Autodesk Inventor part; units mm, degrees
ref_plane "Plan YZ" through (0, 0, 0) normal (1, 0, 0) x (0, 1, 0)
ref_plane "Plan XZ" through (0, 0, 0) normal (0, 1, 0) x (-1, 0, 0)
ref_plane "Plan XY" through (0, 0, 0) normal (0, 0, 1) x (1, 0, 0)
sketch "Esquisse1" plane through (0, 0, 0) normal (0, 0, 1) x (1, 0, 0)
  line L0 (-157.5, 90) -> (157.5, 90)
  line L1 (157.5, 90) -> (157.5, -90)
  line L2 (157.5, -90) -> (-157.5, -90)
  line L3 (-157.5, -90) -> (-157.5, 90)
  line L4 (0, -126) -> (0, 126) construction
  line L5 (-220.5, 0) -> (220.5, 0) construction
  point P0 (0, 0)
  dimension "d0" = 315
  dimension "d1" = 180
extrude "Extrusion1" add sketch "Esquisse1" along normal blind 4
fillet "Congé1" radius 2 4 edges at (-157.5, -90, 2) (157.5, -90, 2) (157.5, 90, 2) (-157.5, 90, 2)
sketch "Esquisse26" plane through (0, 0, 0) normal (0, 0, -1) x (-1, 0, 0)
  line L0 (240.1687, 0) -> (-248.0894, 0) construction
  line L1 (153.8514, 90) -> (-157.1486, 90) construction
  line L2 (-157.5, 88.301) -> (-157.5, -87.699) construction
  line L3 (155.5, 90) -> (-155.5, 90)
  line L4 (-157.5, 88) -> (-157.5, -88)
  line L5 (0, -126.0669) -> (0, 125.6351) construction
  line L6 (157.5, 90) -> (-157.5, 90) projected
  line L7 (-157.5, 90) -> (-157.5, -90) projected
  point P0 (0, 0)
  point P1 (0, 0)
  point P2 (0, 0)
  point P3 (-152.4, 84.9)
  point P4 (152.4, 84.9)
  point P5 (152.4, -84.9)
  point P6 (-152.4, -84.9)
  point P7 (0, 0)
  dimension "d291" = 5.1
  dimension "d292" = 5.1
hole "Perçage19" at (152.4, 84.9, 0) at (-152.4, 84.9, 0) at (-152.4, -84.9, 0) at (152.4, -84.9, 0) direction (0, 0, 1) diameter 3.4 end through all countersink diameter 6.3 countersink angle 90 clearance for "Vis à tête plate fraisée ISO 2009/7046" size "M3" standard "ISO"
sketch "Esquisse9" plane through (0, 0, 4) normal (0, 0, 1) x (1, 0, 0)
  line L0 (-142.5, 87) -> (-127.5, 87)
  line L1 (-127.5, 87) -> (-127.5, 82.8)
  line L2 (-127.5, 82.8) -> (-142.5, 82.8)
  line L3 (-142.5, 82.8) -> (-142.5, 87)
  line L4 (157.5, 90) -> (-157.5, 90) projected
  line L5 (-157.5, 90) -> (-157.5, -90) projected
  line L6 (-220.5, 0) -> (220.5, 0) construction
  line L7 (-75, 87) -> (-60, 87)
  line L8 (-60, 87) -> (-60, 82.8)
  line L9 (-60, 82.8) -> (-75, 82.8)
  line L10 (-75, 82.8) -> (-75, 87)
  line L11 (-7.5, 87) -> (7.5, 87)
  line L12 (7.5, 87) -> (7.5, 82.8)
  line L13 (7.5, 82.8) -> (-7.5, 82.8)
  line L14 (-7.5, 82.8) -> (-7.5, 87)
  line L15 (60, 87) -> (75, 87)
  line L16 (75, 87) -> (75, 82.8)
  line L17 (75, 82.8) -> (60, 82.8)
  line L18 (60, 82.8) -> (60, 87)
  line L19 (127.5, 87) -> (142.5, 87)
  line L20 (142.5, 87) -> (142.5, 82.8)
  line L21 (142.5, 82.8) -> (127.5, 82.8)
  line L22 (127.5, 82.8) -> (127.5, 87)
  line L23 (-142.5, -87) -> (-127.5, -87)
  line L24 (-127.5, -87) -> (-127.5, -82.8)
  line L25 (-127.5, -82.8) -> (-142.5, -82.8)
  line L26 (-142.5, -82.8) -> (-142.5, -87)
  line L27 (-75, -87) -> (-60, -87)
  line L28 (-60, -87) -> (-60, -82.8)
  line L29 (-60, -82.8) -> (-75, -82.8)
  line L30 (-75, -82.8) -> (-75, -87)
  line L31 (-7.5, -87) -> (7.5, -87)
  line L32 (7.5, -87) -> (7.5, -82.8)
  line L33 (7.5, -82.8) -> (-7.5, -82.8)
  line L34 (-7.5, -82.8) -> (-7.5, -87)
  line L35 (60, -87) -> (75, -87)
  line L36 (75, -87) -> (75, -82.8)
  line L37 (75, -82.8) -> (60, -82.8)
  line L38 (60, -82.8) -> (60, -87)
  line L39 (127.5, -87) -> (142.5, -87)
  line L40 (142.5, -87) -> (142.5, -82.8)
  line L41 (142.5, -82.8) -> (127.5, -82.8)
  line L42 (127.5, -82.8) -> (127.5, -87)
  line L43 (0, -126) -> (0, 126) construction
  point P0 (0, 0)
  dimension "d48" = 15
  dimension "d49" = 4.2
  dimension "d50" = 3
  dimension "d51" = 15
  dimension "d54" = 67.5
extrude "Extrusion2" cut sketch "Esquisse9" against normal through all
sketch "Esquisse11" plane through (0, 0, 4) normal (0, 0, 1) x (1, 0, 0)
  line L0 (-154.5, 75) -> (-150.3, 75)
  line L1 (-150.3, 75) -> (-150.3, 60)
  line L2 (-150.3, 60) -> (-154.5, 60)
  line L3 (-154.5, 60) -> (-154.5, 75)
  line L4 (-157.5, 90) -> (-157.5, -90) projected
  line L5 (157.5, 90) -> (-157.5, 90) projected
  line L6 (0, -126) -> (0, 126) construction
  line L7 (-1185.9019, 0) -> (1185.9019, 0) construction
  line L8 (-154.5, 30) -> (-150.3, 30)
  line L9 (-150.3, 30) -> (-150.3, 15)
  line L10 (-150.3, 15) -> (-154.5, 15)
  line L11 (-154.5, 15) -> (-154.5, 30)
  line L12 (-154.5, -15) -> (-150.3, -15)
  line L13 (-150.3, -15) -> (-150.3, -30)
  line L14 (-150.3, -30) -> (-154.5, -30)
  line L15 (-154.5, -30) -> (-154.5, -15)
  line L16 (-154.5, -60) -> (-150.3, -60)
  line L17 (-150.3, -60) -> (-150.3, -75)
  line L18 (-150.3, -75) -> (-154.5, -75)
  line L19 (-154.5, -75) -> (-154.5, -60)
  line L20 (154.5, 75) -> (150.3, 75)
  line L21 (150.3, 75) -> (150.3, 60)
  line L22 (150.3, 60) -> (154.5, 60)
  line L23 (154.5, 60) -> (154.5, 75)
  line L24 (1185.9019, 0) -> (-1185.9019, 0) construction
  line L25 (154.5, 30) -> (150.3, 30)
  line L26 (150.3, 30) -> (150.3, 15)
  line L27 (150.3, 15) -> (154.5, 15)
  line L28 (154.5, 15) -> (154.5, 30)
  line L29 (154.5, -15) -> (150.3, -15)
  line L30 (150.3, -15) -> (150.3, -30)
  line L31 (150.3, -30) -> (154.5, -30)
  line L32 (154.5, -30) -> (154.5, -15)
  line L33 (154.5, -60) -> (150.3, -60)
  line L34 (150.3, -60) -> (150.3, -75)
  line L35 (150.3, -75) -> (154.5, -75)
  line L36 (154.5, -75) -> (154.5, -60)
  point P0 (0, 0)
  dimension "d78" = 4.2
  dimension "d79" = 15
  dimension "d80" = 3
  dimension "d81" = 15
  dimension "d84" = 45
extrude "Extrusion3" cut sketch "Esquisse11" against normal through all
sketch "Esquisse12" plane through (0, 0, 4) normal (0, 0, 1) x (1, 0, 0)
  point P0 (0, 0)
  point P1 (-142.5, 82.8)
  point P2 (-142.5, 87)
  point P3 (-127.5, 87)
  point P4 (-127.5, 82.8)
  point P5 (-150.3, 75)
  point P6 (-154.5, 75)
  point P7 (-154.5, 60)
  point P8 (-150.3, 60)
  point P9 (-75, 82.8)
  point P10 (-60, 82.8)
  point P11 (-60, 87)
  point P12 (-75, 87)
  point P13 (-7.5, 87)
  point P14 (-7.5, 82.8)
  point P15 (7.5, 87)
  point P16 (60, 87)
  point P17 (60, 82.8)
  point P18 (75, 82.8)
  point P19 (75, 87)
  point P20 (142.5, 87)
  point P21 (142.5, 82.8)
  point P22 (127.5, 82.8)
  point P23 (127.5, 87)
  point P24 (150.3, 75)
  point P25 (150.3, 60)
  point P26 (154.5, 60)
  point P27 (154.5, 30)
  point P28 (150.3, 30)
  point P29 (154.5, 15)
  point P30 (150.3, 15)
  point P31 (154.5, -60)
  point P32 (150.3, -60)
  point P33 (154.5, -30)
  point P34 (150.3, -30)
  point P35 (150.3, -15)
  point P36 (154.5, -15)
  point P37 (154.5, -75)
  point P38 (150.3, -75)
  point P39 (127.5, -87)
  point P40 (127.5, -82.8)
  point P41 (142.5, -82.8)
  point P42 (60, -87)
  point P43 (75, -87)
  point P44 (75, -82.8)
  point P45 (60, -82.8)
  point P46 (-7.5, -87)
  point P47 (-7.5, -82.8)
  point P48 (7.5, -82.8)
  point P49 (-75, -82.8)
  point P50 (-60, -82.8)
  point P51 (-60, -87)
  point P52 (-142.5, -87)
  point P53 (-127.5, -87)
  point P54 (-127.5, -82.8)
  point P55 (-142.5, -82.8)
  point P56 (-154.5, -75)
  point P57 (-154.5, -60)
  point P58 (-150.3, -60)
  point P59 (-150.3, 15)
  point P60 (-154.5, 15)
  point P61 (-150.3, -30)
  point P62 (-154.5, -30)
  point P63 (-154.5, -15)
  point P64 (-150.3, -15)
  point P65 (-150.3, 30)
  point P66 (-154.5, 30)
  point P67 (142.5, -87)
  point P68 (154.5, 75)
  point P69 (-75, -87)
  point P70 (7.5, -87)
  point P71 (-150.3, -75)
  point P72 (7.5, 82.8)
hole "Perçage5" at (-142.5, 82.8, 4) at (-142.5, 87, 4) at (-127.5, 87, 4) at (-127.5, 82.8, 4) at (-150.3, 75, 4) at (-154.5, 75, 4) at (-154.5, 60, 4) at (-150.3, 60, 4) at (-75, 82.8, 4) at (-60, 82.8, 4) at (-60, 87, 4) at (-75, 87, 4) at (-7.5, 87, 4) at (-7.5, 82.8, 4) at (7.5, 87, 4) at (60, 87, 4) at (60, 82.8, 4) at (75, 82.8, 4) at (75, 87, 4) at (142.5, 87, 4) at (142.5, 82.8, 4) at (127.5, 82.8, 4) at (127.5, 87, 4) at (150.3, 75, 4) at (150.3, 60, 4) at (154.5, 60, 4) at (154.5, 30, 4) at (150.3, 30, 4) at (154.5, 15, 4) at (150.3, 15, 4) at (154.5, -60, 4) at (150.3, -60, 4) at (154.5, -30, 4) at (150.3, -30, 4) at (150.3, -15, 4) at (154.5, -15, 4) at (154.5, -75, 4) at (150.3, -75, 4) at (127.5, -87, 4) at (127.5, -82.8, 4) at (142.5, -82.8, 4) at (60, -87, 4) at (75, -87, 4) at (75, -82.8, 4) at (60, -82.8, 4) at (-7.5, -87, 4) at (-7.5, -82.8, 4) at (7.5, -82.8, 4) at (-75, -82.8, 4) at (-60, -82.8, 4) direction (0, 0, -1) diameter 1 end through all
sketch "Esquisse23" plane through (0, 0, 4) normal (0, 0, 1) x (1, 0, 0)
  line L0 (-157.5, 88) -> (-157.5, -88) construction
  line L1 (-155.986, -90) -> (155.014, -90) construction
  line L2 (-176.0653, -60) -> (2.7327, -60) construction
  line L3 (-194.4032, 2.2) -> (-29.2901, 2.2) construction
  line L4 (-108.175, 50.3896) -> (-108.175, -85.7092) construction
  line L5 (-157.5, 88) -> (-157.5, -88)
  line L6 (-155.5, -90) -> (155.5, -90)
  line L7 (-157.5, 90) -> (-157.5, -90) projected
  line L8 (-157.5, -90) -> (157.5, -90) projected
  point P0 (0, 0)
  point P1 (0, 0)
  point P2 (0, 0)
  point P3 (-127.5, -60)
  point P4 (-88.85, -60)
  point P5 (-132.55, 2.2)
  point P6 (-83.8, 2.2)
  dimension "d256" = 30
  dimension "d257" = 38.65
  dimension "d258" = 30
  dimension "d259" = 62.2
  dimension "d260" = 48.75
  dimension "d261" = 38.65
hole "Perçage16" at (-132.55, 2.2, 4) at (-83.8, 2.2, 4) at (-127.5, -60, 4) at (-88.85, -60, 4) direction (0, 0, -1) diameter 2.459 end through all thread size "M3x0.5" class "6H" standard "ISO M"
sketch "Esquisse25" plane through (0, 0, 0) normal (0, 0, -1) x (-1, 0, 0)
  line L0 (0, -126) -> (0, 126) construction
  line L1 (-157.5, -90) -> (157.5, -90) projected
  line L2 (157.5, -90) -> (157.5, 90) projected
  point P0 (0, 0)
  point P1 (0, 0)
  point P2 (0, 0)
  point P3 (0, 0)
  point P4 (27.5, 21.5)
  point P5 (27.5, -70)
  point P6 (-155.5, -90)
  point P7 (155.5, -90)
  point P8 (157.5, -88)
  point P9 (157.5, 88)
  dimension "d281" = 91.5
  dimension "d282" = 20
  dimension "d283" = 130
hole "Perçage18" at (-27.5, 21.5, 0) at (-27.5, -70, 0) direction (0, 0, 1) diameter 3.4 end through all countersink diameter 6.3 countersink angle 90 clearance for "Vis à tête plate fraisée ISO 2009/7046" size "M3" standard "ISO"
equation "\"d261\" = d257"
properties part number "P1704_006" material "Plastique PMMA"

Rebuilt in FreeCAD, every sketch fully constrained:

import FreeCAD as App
import Part
import Sketcher

V = App.Vector
Q = App.Units.Quantity


def edges_at(feature, points):
    """Names of the edges that pass closest to the given points."""
    edges = feature.Shape.Edges
    near = lambda p: min(range(len(edges)), key=lambda i: edges[i].distToShape(Part.Vertex(*p))[0])
    return sorted({f"Edge{near(p) + 1}" for p in points})


def add_polygon(sketch, points):
    """Adds a closed chain of lines whose ends are joined by coincident constraints."""
    first, n = sketch.GeometryCount, len(points)
    for a, b in zip(points, points[1:] + points[:1]):
        sketch.addGeometry(Part.LineSegment(App.Vector(*a, 0), App.Vector(*b, 0)), False)
    for i in range(n):
        sketch.addConstraint(Sketcher.Constraint("Coincident", first + i, 2, first + (i + 1) % n, 1))

doc = App.newDocument("Part")
body = doc.addObject("PartDesign::Body", "Body")

sketch1 = doc.addObject("Sketcher::SketchObject", "Sketch")
body.addObject(sketch1)
sketch1.AttachmentSupport = (doc.XY_Plane, [""])
sketch1.MapMode = "FlatFace"
add_polygon(sketch1, [(158, 90), (-158, 90), (-158, -90), (158, -90)])
sketch1.addConstraint([
    Sketcher.Constraint("Horizontal", 0),
    Sketcher.Constraint("Vertical", 1),
    Sketcher.Constraint("Horizontal", 2),
    Sketcher.Constraint("Vertical", 3),
    Sketcher.Constraint("Symmetric", 0, 2, 2, 2, -1, 1),
    Sketcher.Constraint("DistanceX", 0, 2, 0, 1, Q("315 mm")),
    Sketcher.Constraint("DistanceY", 1, 2, 1, 1, Q("180 mm")),
])
pad1 = doc.addObject("PartDesign::Pad", "Pad")
body.addObject(pad1)
pad1.Profile = sketch1
pad1.Length = 4
doc.recompute()

fillet = doc.addObject("PartDesign::Fillet", "Fillet")
body.addObject(fillet)
fillet.Base = (pad1, edges_at(pad1, [
    (-157.5, -90, 2),
    (157.5, -90, 2),
    (157.5, 90, 2),
    (-157.5, 90, 2),
]))
fillet.Radius = 2

sketch2 = doc.addObject("Sketcher::SketchObject", "Sketch001")
body.addObject(sketch2)
sketch2.AttachmentSupport = (doc.XY_Plane, [""])
sketch2.MapMode = "FlatFace"
sketch2.addGeometry([
    Part.Circle(V(152.4, 84.9, 0), V(0, 0, 1), 1.7),
    Part.Circle(V(-152.4, 84.9, 0), V(0, 0, 1), 1.7),
    Part.Circle(V(-152.4, -84.9, 0), V(0, 0, 1), 1.7),
    Part.Circle(V(152.4, -84.9, 0), V(0, 0, 1), 1.7),
], False)
sketch2.addConstraint([
    Sketcher.Constraint("Equal", 0, 1),
    Sketcher.Constraint("Equal", 1, 2),
    Sketcher.Constraint("Equal", 2, 3),
    Sketcher.Constraint("Symmetric", 0, 3, 2, 3, -1, 1),
    Sketcher.Constraint("Symmetric", 1, 3, 3, 3, -1, 1),
    Sketcher.Constraint("Symmetric", 0, 3, 1, 3, -2),
    Sketcher.Constraint("Diameter", 0, Q("3.4 mm")),
    Sketcher.Constraint("DistanceX", -1, 1, 0, 3, Q("152.4 mm")),
    Sketcher.Constraint("DistanceY", -1, 1, 0, 3, Q("84.9 mm")),
])
doc.recompute()
hole = doc.addObject("PartDesign::Hole", "Hole")
body.addObject(hole)
hole.Profile = sketch2
hole.ThreadType = "None"
hole.Diameter = 3.4
hole.DepthType = "ThroughAll"
hole.HoleCutType = "Countersink"
hole.HoleCutDiameter = 6.3
hole.HoleCutCountersinkAngle = 90
hole.Reversed = True

sketch3 = doc.addObject("Sketcher::SketchObject", "Sketch002")
body.addObject(sketch3)
sketch3.AttachmentSupport = (doc.XY_Plane, [""])
sketch3.MapMode = "FlatFace"
sketch3.AttachmentOffset = App.Placement(V(0, 0, 4), App.Rotation())
add_polygon(sketch3, [(-127.5, 87), (-142.5, 87), (-142.5, 82.8), (-127.5, 82.8)])
add_polygon(sketch3, [(-60, 87), (-75, 87), (-75, 82.8), (-60, 82.8)])
add_polygon(sketch3, [(7.5, 87), (-7.5, 87), (-7.5, 82.8), (7.5, 82.8)])
add_polygon(sketch3, [(75, 87), (60, 87), (60, 82.8), (75, 82.8)])
add_polygon(sketch3, [(142.5, 87), (127.5, 87), (127.5, 82.8), (142.5, 82.8)])
add_polygon(sketch3, [(-142.5, -82.8), (-142.5, -87), (-127.5, -87), (-127.5, -82.8)])
add_polygon(sketch3, [(-75, -82.8), (-75, -87), (-60, -87), (-60, -82.8)])
add_polygon(sketch3, [(-7.5, -82.8), (-7.5, -87), (7.5, -87), (7.5, -82.8)])
add_polygon(sketch3, [(60, -82.8), (60, -87), (75, -87), (75, -82.8)])
add_polygon(sketch3, [(127.5, -82.8), (127.5, -87), (142.5, -87), (142.5, -82.8)])
sketch3.addConstraint([
    Sketcher.Constraint("Horizontal", 0),
    Sketcher.Constraint("Vertical", 1),
    Sketcher.Constraint("Horizontal", 2),
    Sketcher.Constraint("Vertical", 3),
    Sketcher.Constraint("Horizontal", 4),
    Sketcher.Constraint("Vertical", 5),
    Sketcher.Constraint("Horizontal", 6),
    Sketcher.Constraint("Vertical", 7),
    Sketcher.Constraint("Horizontal", 8),
    Sketcher.Constraint("Vertical", 9),
    Sketcher.Constraint("Horizontal", 10),
    Sketcher.Constraint("Vertical", 11),
    Sketcher.Constraint("Horizontal", 12),
    Sketcher.Constraint("Vertical", 13),
    Sketcher.Constraint("Horizontal", 14),
    Sketcher.Constraint("Vertical", 15),
    Sketcher.Constraint("Horizontal", 16),
    Sketcher.Constraint("Vertical", 17),
    Sketcher.Constraint("Horizontal", 18),
    Sketcher.Constraint("Vertical", 19),
    Sketcher.Constraint("Vertical", 20),
    Sketcher.Constraint("Horizontal", 21),
    Sketcher.Constraint("Vertical", 22),
    Sketcher.Constraint("Horizontal", 23),
    Sketcher.Constraint("Vertical", 24),
    Sketcher.Constraint("Horizontal", 25),
    Sketcher.Constraint("Vertical", 26),
    Sketcher.Constraint("Horizontal", 27),
    Sketcher.Constraint("Vertical", 28),
    Sketcher.Constraint("Horizontal", 29),
    Sketcher.Constraint("Vertical", 30),
    Sketcher.Constraint("Horizontal", 31),
    Sketcher.Constraint("Vertical", 32),
    Sketcher.Constraint("Horizontal", 33),
    Sketcher.Constraint("Vertical", 34),
    Sketcher.Constraint("Horizontal", 35),
    Sketcher.Constraint("Vertical", 36),
    Sketcher.Constraint("Horizontal", 37),
    Sketcher.Constraint("Vertical", 38),
    Sketcher.Constraint("Horizontal", 39),
    Sketcher.Constraint("Symmetric", 19, 2, 20, 2, -1, 1),
    Sketcher.Constraint("Symmetric", 17, 2, 22, 2, -1, 1),
    Sketcher.Constraint("Symmetric", 15, 2, 24, 2, -1, 1),
    Sketcher.Constraint("Symmetric", 13, 2, 26, 2, -1, 1),
    Sketcher.Constraint("Symmetric", 11, 2, 28, 2, -1, 1),
    Sketcher.Constraint("Symmetric", 9, 2, 30, 2, -1, 1),
    Sketcher.Constraint("Symmetric", 7, 2, 32, 2, -1, 1),
    Sketcher.Constraint("Symmetric", 5, 2, 34, 2, -1, 1),
    Sketcher.Constraint("Symmetric", 3, 2, 36, 2, -1, 1),
    Sketcher.Constraint("Symmetric", 1, 2, 38, 2, -1, 1),
    Sketcher.Constraint("Symmetric", 7, 2, 12, 2, -2),
    Sketcher.Constraint("Symmetric", 5, 2, 14, 2, -2),
    Sketcher.Constraint("Symmetric", 3, 2, 16, 2, -2),
    Sketcher.Constraint("Symmetric", 1, 2, 18, 2, -2),
    Sketcher.Constraint("Horizontal", 3, 2, 4, 2),
    Sketcher.Constraint("Horizontal", 2, 2, 5, 2),
    Sketcher.Constraint("Horizontal", 7, 2, 8, 2),
    Sketcher.Constraint("Horizontal", 6, 2, 9, 2),
    Sketcher.Constraint("Vertical", 9, 2, 28, 2),
    Sketcher.Constraint("Equal", 2, 4),
    Sketcher.Constraint("Equal", 6, 8),
    Sketcher.Constraint("DistanceX", 0, 2, 0, 1, Q("15 mm")),
    Sketcher.Constraint("DistanceY", 1, 2, 1, 1, Q("4.2 mm")),
    Sketcher.Constraint("DistanceX", 0, 2, 4, 2, Q("67.5 mm")),
    Sketcher.Constraint("DistanceX", 4, 2, 8, 2, Q("67.5 mm")),
    Sketcher.Constraint("DistanceY", -1, 1, 0, 2, Q("87 mm")),
])
pocket1 = doc.addObject("PartDesign::Pocket", "Pocket")
body.addObject(pocket1)
pocket1.Profile = sketch3
pocket1.Type = "ThroughAll"

sketch4 = doc.addObject("Sketcher::SketchObject", "Sketch003")
body.addObject(sketch4)
sketch4.AttachmentSupport = (doc.XY_Plane, [""])
sketch4.MapMode = "FlatFace"
sketch4.AttachmentOffset = App.Placement(V(0, 0, 4), App.Rotation())
add_polygon(sketch4, [(-150.3, 75), (-154.5, 75), (-154.5, 60), (-150.3, 60)])
add_polygon(sketch4, [(-150.3, 30), (-154.5, 30), (-154.5, 15), (-150.3, 15)])
add_polygon(sketch4, [(-150.3, -15), (-154.5, -15), (-154.5, -30), (-150.3, -30)])
add_polygon(sketch4, [(-150.3, -60), (-154.5, -60), (-154.5, -75), (-150.3, -75)])
add_polygon(sketch4, [(154.5, 60), (154.5, 75), (150.3, 75), (150.3, 60)])
add_polygon(sketch4, [(154.5, 15), (154.5, 30), (150.3, 30), (150.3, 15)])
add_polygon(sketch4, [(154.5, -30), (154.5, -15), (150.3, -15), (150.3, -30)])
add_polygon(sketch4, [(154.5, -75), (154.5, -60), (150.3, -60), (150.3, -75)])
sketch4.addConstraint([
    Sketcher.Constraint("Horizontal", 0),
    Sketcher.Constraint("Vertical", 1),
    Sketcher.Constraint("Horizontal", 2),
    Sketcher.Constraint("Vertical", 3),
    Sketcher.Constraint("Horizontal", 4),
    Sketcher.Constraint("Vertical", 5),
    Sketcher.Constraint("Horizontal", 6),
    Sketcher.Constraint("Vertical", 7),
    Sketcher.Constraint("Horizontal", 8),
    Sketcher.Constraint("Vertical", 9),
    Sketcher.Constraint("Horizontal", 10),
    Sketcher.Constraint("Vertical", 11),
    Sketcher.Constraint("Horizontal", 12),
    Sketcher.Constraint("Vertical", 13),
    Sketcher.Constraint("Horizontal", 14),
    Sketcher.Constraint("Vertical", 15),
    Sketcher.Constraint("Vertical", 16),
    Sketcher.Constraint("Horizontal", 17),
    Sketcher.Constraint("Vertical", 18),
    Sketcher.Constraint("Horizontal", 19),
    Sketcher.Constraint("Vertical", 20),
    Sketcher.Constraint("Horizontal", 21),
    Sketcher.Constraint("Vertical", 22),
    Sketcher.Constraint("Horizontal", 23),
    Sketcher.Constraint("Vertical", 24),
    Sketcher.Constraint("Horizontal", 25),
    Sketcher.Constraint("Vertical", 26),
    Sketcher.Constraint("Horizontal", 27),
    Sketcher.Constraint("Vertical", 28),
    Sketcher.Constraint("Horizontal", 29),
    Sketcher.Constraint("Vertical", 30),
    Sketcher.Constraint("Horizontal", 31),
    Sketcher.Constraint("Symmetric", 13, 2, 16, 2, -1, 1),
    Sketcher.Constraint("Symmetric", 15, 2, 18, 2, -1, 1),
    Sketcher.Constraint("Symmetric", 9, 2, 20, 2, -1, 1),
    Sketcher.Constraint("Symmetric", 11, 2, 22, 2, -1, 1),
    Sketcher.Constraint("Symmetric", 5, 2, 24, 2, -1, 1),
    Sketcher.Constraint("Symmetric", 7, 2, 26, 2, -1, 1),
    Sketcher.Constraint("Symmetric", 1, 2, 28, 2, -1, 1),
    Sketcher.Constraint("Symmetric", 3, 2, 30, 2, -1, 1),
    Sketcher.Constraint("Symmetric", 0, 2, 16, 2, -2),
    Sketcher.Constraint("Symmetric", 2, 2, 18, 2, -2),
    Sketcher.Constraint("Symmetric", 4, 2, 20, 2, -2),
    Sketcher.Constraint("Symmetric", 6, 2, 22, 2, -2),
    Sketcher.Constraint("Vertical", 1, 2, 4, 2),
    Sketcher.Constraint("Vertical", 3, 2, 6, 2),
    Sketcher.Constraint("Equal", 3, 5),
    Sketcher.Constraint("DistanceY", 1, 2, 1, 1, Q("15 mm")),
    Sketcher.Constraint("DistanceX", 0, 2, 0, 1, Q("4.2 mm")),
    Sketcher.Constraint("DistanceY", -1, 1, 5, 2, Q("15 mm")),
    Sketcher.Constraint("DistanceY", 4, 2, 0, 2, Q("45 mm")),
    Sketcher.Constraint("DistanceX", 0, 2, 16, 2, Q("309 mm")),
])
pocket2 = doc.addObject("PartDesign::Pocket", "Pocket001")
body.addObject(pocket2)
pocket2.Profile = sketch4
pocket2.Type = "ThroughAll"

sketch5 = doc.addObject("Sketcher::SketchObject", "Sketch004")
body.addObject(sketch5)
sketch5.AttachmentSupport = (doc.XY_Plane, [""])
sketch5.MapMode = "FlatFace"
sketch5.AttachmentOffset = App.Placement(V(0, 0, 4), App.Rotation())
sketch5.addGeometry([
    Part.Circle(V(-142.5, 82.8, 0), V(0, 0, 1), 0.5),
    Part.Circle(V(-142.5, 87, 0), V(0, 0, 1), 0.5),
    Part.Circle(V(-127.5, 87, 0), V(0, 0, 1), 0.5),
    Part.Circle(V(-127.5, 82.8, 0), V(0, 0, 1), 0.5),
    Part.Circle(V(-150.3, 75, 0), V(0, 0, 1), 0.5),
    Part.Circle(V(-154.5, 75, 0), V(0, 0, 1), 0.5),
    Part.Circle(V(-154.5, 60, 0), V(0, 0, 1), 0.5),
    Part.Circle(V(-150.3, 60, 0), V(0, 0, 1), 0.5),
    Part.Circle(V(-75, 82.8, 0), V(0, 0, 1), 0.5),
    Part.Circle(V(-60, 82.8, 0), V(0, 0, 1), 0.5),
    Part.Circle(V(-60, 87, 0), V(0, 0, 1), 0.5),
    Part.Circle(V(-75, 87, 0), V(0, 0, 1), 0.5),
    Part.Circle(V(-7.5, 87, 0), V(0, 0, 1), 0.5),
    Part.Circle(V(-7.5, 82.8, 0), V(0, 0, 1), 0.5),
    Part.Circle(V(7.5, 87, 0), V(0, 0, 1), 0.5),
    Part.Circle(V(60, 87, 0), V(0, 0, 1), 0.5),
    Part.Circle(V(60, 82.8, 0), V(0, 0, 1), 0.5),
    Part.Circle(V(75, 82.8, 0), V(0, 0, 1), 0.5),
    Part.Circle(V(75, 87, 0), V(0, 0, 1), 0.5),
    Part.Circle(V(142.5, 87, 0), V(0, 0, 1), 0.5),
    Part.Circle(V(142.5, 82.8, 0), V(0, 0, 1), 0.5),
    Part.Circle(V(127.5, 82.8, 0), V(0, 0, 1), 0.5),
    Part.Circle(V(127.5, 87, 0), V(0, 0, 1), 0.5),
    Part.Circle(V(150.3, 75, 0), V(0, 0, 1), 0.5),
    Part.Circle(V(150.3, 60, 0), V(0, 0, 1), 0.5),
    Part.Circle(V(154.5, 60, 0), V(0, 0, 1), 0.5),
    Part.Circle(V(154.5, 30, 0), V(0, 0, 1), 0.5),
    Part.Circle(V(150.3, 30, 0), V(0, 0, 1), 0.5),
    Part.Circle(V(154.5, 15, 0), V(0, 0, 1), 0.5),
    Part.Circle(V(150.3, 15, 0), V(0, 0, 1), 0.5),
    Part.Circle(V(154.5, -60, 0), V(0, 0, 1), 0.5),
    Part.Circle(V(150.3, -60, 0), V(0, 0, 1), 0.5),
    Part.Circle(V(154.5, -30, 0), V(0, 0, 1), 0.5),
    Part.Circle(V(150.3, -30, 0), V(0, 0, 1), 0.5),
    Part.Circle(V(150.3, -15, 0), V(0, 0, 1), 0.5),
    Part.Circle(V(154.5, -15, 0), V(0, 0, 1), 0.5),
    Part.Circle(V(154.5, -75, 0), V(0, 0, 1), 0.5),
    Part.Circle(V(150.3, -75, 0), V(0, 0, 1), 0.5),
    Part.Circle(V(127.5, -87, 0), V(0, 0, 1), 0.5),
    Part.Circle(V(127.5, -82.8, 0), V(0, 0, 1), 0.5),
    Part.Circle(V(142.5, -82.8, 0), V(0, 0, 1), 0.5),
    Part.Circle(V(60, -87, 0), V(0, 0, 1), 0.5),
    Part.Circle(V(75, -87, 0), V(0, 0, 1), 0.5),
    Part.Circle(V(75, -82.8, 0), V(0, 0, 1), 0.5),
    Part.Circle(V(60, -82.8, 0), V(0, 0, 1), 0.5),
    Part.Circle(V(-7.5, -87, 0), V(0, 0, 1), 0.5),
    Part.Circle(V(-7.5, -82.8, 0), V(0, 0, 1), 0.5),
    Part.Circle(V(7.5, -82.8, 0), V(0, 0, 1), 0.5),
    Part.Circle(V(-75, -82.8, 0), V(0, 0, 1), 0.5),
    Part.Circle(V(-60, -82.8, 0), V(0, 0, 1), 0.5),
], False)
sketch5.addConstraint([
    Sketcher.Constraint("Equal", 0, 1),
    Sketcher.Constraint("Equal", 1, 2),
    Sketcher.Constraint("Equal", 2, 3),
    Sketcher.Constraint("Equal", 3, 4),
    Sketcher.Constraint("Equal", 4, 5),
    Sketcher.Constraint("Equal", 5, 6),
    Sketcher.Constraint("Equal", 6, 7),
    Sketcher.Constraint("Equal", 7, 8),
    Sketcher.Constraint("Equal", 8, 9),
    Sketcher.Constraint("Equal", 9, 10),
    Sketcher.Constraint("Equal", 10, 11),
    Sketcher.Constraint("Equal", 11, 12),
    Sketcher.Constraint("Equal", 12, 13),
    Sketcher.Constraint("Equal", 13, 14),
    Sketcher.Constraint("Equal", 14, 15),
    Sketcher.Constraint("Equal", 15, 16),
    Sketcher.Constraint("Equal", 16, 17),
    Sketcher.Constraint("Equal", 17, 18),
    Sketcher.Constraint("Equal", 18, 19),
    Sketcher.Constraint("Equal", 19, 20),
    Sketcher.Constraint("Equal", 20, 21),
    Sketcher.Constraint("Equal", 21, 22),
    Sketcher.Constraint("Equal", 22, 23),
    Sketcher.Constraint("Equal", 23, 24),
    Sketcher.Constraint("Equal", 24, 25),
    Sketcher.Constraint("Equal", 25, 26),
    Sketcher.Constraint("Equal", 26, 27),
    Sketcher.Constraint("Equal", 27, 28),
    Sketcher.Constraint("Equal", 28, 29),
    Sketcher.Constraint("Equal", 29, 30),
    Sketcher.Constraint("Equal", 30, 31),
    Sketcher.Constraint("Equal", 31, 32),
    Sketcher.Constraint("Equal", 32, 33),
    Sketcher.Constraint("Equal", 33, 34),
    Sketcher.Constraint("Equal", 34, 35),
    Sketcher.Constraint("Equal", 35, 36),
    Sketcher.Constraint("Equal", 36, 37),
    Sketcher.Constraint("Equal", 37, 38),
    Sketcher.Constraint("Equal", 38, 39),
    Sketcher.Constraint("Equal", 39, 40),
    Sketcher.Constraint("Equal", 40, 41),
    Sketcher.Constraint("Equal", 41, 42),
    Sketcher.Constraint("Equal", 42, 43),
    Sketcher.Constraint("Equal", 43, 44),
    Sketcher.Constraint("Equal", 44, 45),
    Sketcher.Constraint("Equal", 45, 46),
    Sketcher.Constraint("Equal", 46, 47),
    Sketcher.Constraint("Equal", 47, 48),
    Sketcher.Constraint("Equal", 48, 49),
    Sketcher.Constraint("Symmetric", 6, 3, 30, 3, -1, 1),
    Sketcher.Constraint("Symmetric", 7, 3, 31, 3, -1, 1),
    Sketcher.Constraint("Symmetric", 5, 3, 36, 3, -1, 1),
    Sketcher.Constraint("Symmetric", 4, 3, 37, 3, -1, 1),
    Sketcher.Constraint("Symmetric", 2, 3, 38, 3, -1, 1),
    Sketcher.Constraint("Symmetric", 3, 3, 39, 3, -1, 1),
    Sketcher.Constraint("Symmetric", 0, 3, 40, 3, -1, 1),
    Sketcher.Constraint("Symmetric", 10, 3, 41, 3, -1, 1),
    Sketcher.Constraint("Symmetric", 11, 3, 42, 3, -1, 1),
    Sketcher.Constraint("Symmetric", 8, 3, 43, 3, -1, 1),
    Sketcher.Constraint("Symmetric", 9, 3, 44, 3, -1, 1),
    Sketcher.Constraint("Symmetric", 14, 3, 45, 3, -1, 1),
    Sketcher.Constraint("Symmetric", 13, 3, 47, 3, -1, 1),
    Sketcher.Constraint("Symmetric", 17, 3, 48, 3, -1, 1),
    Sketcher.Constraint("Symmetric", 16, 3, 49, 3, -1, 1),
    Sketcher.Constraint("Symmetric", 12, 3, 14, 3, -2),
    Sketcher.Constraint("Symmetric", 10, 3, 15, 3, -2),
    Sketcher.Constraint("Symmetric", 9, 3, 16, 3, -2),
    Sketcher.Constraint("Symmetric", 8, 3, 17, 3, -2),
    Sketcher.Constraint("Symmetric", 11, 3, 18, 3, -2),
    Sketcher.Constraint("Symmetric", 1, 3, 19, 3, -2),
    Sketcher.Constraint("Symmetric", 0, 3, 20, 3, -2),
    Sketcher.Constraint("Symmetric", 3, 3, 21, 3, -2),
    Sketcher.Constraint("Symmetric", 2, 3, 22, 3, -2),
    Sketcher.Constraint("Symmetric", 4, 3, 23, 3, -2),
    Sketcher.Constraint("Symmetric", 7, 3, 24, 3, -2),
    Sketcher.Constraint("Symmetric", 6, 3, 25, 3, -2),
    Sketcher.Constraint("Symmetric", 46, 3, 47, 3, -2),
    Sketcher.Constraint("Symmetric", 26, 3, 32, 3, -1),
    Sketcher.Constraint("Symmetric", 27, 3, 33, 3, -1),
    Sketcher.Constraint("Symmetric", 29, 3, 34, 3, -1),
    Sketcher.Constraint("Symmetric", 28, 3, 35, 3, -1),
    Sketcher.Constraint("Horizontal", 1, 3, 2, 3),
    Sketcher.Constraint("Horizontal", 0, 3, 3, 3),
    Sketcher.Constraint("Horizontal", 4, 3, 5, 3),
    Sketcher.Constraint("Horizontal", 6, 3, 7, 3),
    Sketcher.Constraint("Horizontal", 3, 3, 8, 3),
    Sketcher.Constraint("Horizontal", 8, 3, 9, 3),
    Sketcher.Constraint("Horizontal", 2, 3, 10, 3),
    Sketcher.Constraint("Horizontal", 10, 3, 11, 3),
    Sketcher.Constraint("Horizontal", 11, 3, 12, 3),
    Sketcher.Constraint("Horizontal", 9, 3, 13, 3),
    Sketcher.Constraint("Horizontal", 26, 3, 27, 3),
    Sketcher.Constraint("Horizontal", 28, 3, 29, 3),
    Sketcher.Constraint("Vertical", 0, 3, 1, 3),
    Sketcher.Constraint("Vertical", 2, 3, 3, 3),
    Sketcher.Constraint("Vertical", 5, 3, 6, 3),
    Sketcher.Constraint("Vertical", 4, 3, 7, 3),
    Sketcher.Constraint("Vertical", 9, 3, 10, 3),
    Sketcher.Constraint("Vertical", 8, 3, 11, 3),
    Sketcher.Constraint("Vertical", 12, 3, 13, 3),
    Sketcher.Constraint("Vertical", 25, 3, 26, 3),
    Sketcher.Constraint("Vertical", 24, 3, 27, 3),
    Sketcher.Constraint("Vertical", 26, 3, 28, 3),
    Sketcher.Constraint("Vertical", 27, 3, 29, 3),
    Sketcher.Constraint("Diameter", 0, Q("1 mm")),
    Sketcher.Constraint("DistanceY", -1, 1, 1, 3, Q("87 mm")),
    Sketcher.Constraint("DistanceY", -1, 1, 4, 3, Q("75 mm")),
    Sketcher.Constraint("DistanceY", -1, 1, 6, 3, Q("60 mm")),
    Sketcher.Constraint("DistanceX", 8, 3, -1, 1, Q("75 mm")),
    Sketcher.Constraint("DistanceX", 9, 3, -1, 1, Q("60 mm")),
    Sketcher.Constraint("DistanceY", -1, 1, 26, 3, Q("30 mm")),
    Sketcher.Constraint("DistanceY", -1, 1, 28, 3, Q("15 mm")),
    Sketcher.Constraint("DistanceX", 1, 3, 2, 3, Q("15 mm")),
    Sketcher.Constraint("DistanceX", 5, 3, 0, 3, Q("12 mm")),
    Sketcher.Constraint("DistanceX", 2, 3, 12, 3, Q("120 mm")),
    Sketcher.Constraint("DistanceX", 12, 3, 14, 3, Q("15 mm")),
    Sketcher.Constraint("DistanceY", -1, 1, 0, 3, Q("82.8 mm")),
    Sketcher.Constraint("DistanceX", 4, 3, -1, 1, Q("150.3 mm")),
])
doc.recompute()
hole2 = doc.addObject("PartDesign::Hole", "Hole001")
body.addObject(hole2)
hole2.Profile = sketch5
hole2.ThreadType = "None"
hole2.Diameter = 1
hole2.DepthType = "ThroughAll"

sketch6 = doc.addObject("Sketcher::SketchObject", "Sketch005")
body.addObject(sketch6)
sketch6.AttachmentSupport = (doc.XY_Plane, [""])
sketch6.MapMode = "FlatFace"
sketch6.AttachmentOffset = App.Placement(V(0, 0, 4), App.Rotation())
sketch6.addGeometry([
    Part.Circle(V(-132.6, 2.2, 0), V(0, 0, 1), 1.2),
    Part.Circle(V(-83.8, 2.2, 0), V(0, 0, 1), 1.2),
    Part.Circle(V(-127.5, -60, 0), V(0, 0, 1), 1.2),
    Part.Circle(V(-88.8, -60, 0), V(0, 0, 1), 1.2),
], False)
sketch6.addConstraint([
    Sketcher.Constraint("Equal", 0, 1),
    Sketcher.Constraint("Equal", 1, 2),
    Sketcher.Constraint("Equal", 2, 3),
    Sketcher.Constraint("Horizontal", 0, 3, 1, 3),
    Sketcher.Constraint("Horizontal", 2, 3, 3, 3),
    Sketcher.Constraint("Diameter", 0, Q("2.459 mm")),
    Sketcher.Constraint("DistanceY", 2, 3, -1, 1, Q("60 mm")),
    Sketcher.Constraint("DistanceY", -1, 1, 0, 3, Q("2.2 mm")),
    Sketcher.Constraint("DistanceX", 1, 3, -1, 1, Q("83.8 mm")),
    Sketcher.Constraint("DistanceX", 2, 3, -1, 1, Q("127.5 mm")),
    Sketcher.Constraint("DistanceX", 0, 3, 3, 3, Q("43.7 mm")),
    Sketcher.Constraint("DistanceX", 0, 3, -1, 1, Q("132.55 mm")),
])
doc.recompute()
hole3 = doc.addObject("PartDesign::Hole", "Hole002")
body.addObject(hole3)
hole3.Profile = sketch6
hole3.ThreadType = "None"
hole3.Diameter = 2.459
hole3.DepthType = "ThroughAll"

sketch7 = doc.addObject("Sketcher::SketchObject", "Sketch006")
body.addObject(sketch7)
sketch7.AttachmentSupport = (doc.XY_Plane, [""])
sketch7.MapMode = "FlatFace"
sketch7.addGeometry([
    Part.Circle(V(-27.5, 21.5, 0), V(0, 0, 1), 1.7),
    Part.Circle(V(-27.5, -70, 0), V(0, 0, 1), 1.7),
], False)
sketch7.addConstraint([
    Sketcher.Constraint("Equal", 0, 1),
    Sketcher.Constraint("Vertical", 0, 3, 1, 3),
    Sketcher.Constraint("Diameter", 0, Q("3.4 mm")),
    Sketcher.Constraint("DistanceY", 1, 3, -1, 1, Q("70 mm")),
    Sketcher.Constraint("DistanceX", 0, 3, -1, 1, Q("27.5 mm")),
    Sketcher.Constraint("DistanceY", -1, 1, 0, 3, Q("21.5 mm")),
])
doc.recompute()
hole4 = doc.addObject("PartDesign::Hole", "Hole003")
body.addObject(hole4)
hole4.Profile = sketch7
hole4.ThreadType = "None"
hole4.Diameter = 3.4
hole4.DepthType = "ThroughAll"
hole4.HoleCutType = "Countersink"
hole4.HoleCutDiameter = 6.3
hole4.HoleCutCountersinkAngle = 90
hole4.Reversed = True

doc.recompute()
